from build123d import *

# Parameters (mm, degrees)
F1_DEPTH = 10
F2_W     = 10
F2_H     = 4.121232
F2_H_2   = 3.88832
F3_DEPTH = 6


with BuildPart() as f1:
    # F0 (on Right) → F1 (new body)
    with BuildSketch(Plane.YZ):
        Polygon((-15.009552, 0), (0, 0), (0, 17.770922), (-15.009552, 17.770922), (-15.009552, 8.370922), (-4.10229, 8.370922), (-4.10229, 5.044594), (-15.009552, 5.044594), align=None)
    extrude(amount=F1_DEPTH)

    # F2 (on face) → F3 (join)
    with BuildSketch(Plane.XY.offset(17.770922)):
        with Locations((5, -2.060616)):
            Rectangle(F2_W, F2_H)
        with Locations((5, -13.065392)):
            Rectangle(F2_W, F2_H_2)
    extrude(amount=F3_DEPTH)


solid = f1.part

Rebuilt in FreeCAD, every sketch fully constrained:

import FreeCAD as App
import Part
import Sketcher
from FreeCAD import Vector
Q = App.Units.Quantity

doc = App.newDocument("Part")
body = doc.addObject("PartDesign::Body", "Body")

# Sketch on YZ plane
sketch1 = body.newObject("Sketcher::SketchObject", "Sketch")
sketch1.AttachmentSupport = (doc.getObject("YZ_Plane"), [""])
sketch1.MapMode = "FlatFace"
sketch1.addGeometry([
    Part.LineSegment(Vector(-15, 0, 0), Vector(0, 0, 0)),  # 0
    Part.LineSegment(Vector(0, 0, 0), Vector(0, 17.8, 0)),  # 1
    Part.LineSegment(Vector(0, 17.8, 0), Vector(-15, 17.8, 0)),  # 2
    Part.LineSegment(Vector(-15, 17.8, 0), Vector(-15, 8.4, 0)),  # 3
    Part.LineSegment(Vector(-15, 8.4, 0), Vector(-4.1, 8.4, 0)),  # 4
    Part.LineSegment(Vector(-4.1, 8.4, 0), Vector(-4.1, 5, 0)),  # 5
    Part.LineSegment(Vector(-4.1, 5, 0), Vector(-15, 5, 0)),  # 6
    Part.LineSegment(Vector(-15, 5, 0), Vector(-15, 0, 0)),  # 7
], False)
sketch1.addConstraint([
    Sketcher.Constraint("Coincident", 0, 2, 1, 1),
    Sketcher.Constraint("Coincident", 1, 2, 2, 1),
    Sketcher.Constraint("Coincident", 2, 2, 3, 1),
    Sketcher.Constraint("Coincident", 3, 2, 4, 1),
    Sketcher.Constraint("Coincident", 4, 2, 5, 1),
    Sketcher.Constraint("Coincident", 5, 2, 6, 1),
    Sketcher.Constraint("Coincident", 6, 2, 7, 1),
    Sketcher.Constraint("Coincident", 7, 2, 0, 1),
    Sketcher.Constraint("Horizontal", 0),
    Sketcher.Constraint("Vertical", 1),
    Sketcher.Constraint("Horizontal", 2),
    Sketcher.Constraint("Vertical", 3),
    Sketcher.Constraint("Horizontal", 4),
    Sketcher.Constraint("Vertical", 5),
    Sketcher.Constraint("Horizontal", 6),
    Sketcher.Constraint("Vertical", 7),
    Sketcher.Constraint("Coincident", 0, 2, -1, 1),
    Sketcher.Constraint("Vertical", 3, 2, 6, 2),
    Sketcher.Constraint("DistanceY", 3, 2, 3, 1, Q("9.4 mm")),
    Sketcher.Constraint("DistanceX", 0, 1, 0, 2, Q("15.009552 mm")),
    Sketcher.Constraint("DistanceX", 4, 1, 4, 2, Q("10.907262 mm")),
    Sketcher.Constraint("DistanceY", 1, 1, 1, 2, Q("17.770922 mm")),
    Sketcher.Constraint("DistanceY", 5, 2, 5, 1, Q("3.326328 mm")),
])
pad1 = body.newObject("PartDesign::Pad", "Pad")
pad1.Profile = sketch1
pad1.Length = 10

# Sketch on XY plane
sketch2 = body.newObject("Sketcher::SketchObject", "Sketch001")
sketch2.AttachmentSupport = (doc.getObject("XY_Plane"), [""])
sketch2.MapMode = "FlatFace"
sketch2.AttachmentOffset = App.Placement(Vector(0, 0, 17.770922), App.Rotation())
sketch2.addGeometry([
    Part.LineSegment(Vector(0, 0, 0), Vector(0, -4.1, 0)),  # 0
    Part.LineSegment(Vector(0, -4.1, 0), Vector(10, -4.1, 0)),  # 1
    Part.LineSegment(Vector(10, -4.1, 0), Vector(10, 0, 0)),  # 2
    Part.LineSegment(Vector(10, 0, 0), Vector(0, 0, 0)),  # 3
    Part.LineSegment(Vector(0, -11.1, 0), Vector(0, -15, 0)),  # 4
    Part.LineSegment(Vector(0, -15, 0), Vector(10, -15, 0)),  # 5
    Part.LineSegment(Vector(10, -15, 0), Vector(10, -11.1, 0)),  # 6
    Part.LineSegment(Vector(10, -11.1, 0), Vector(0, -11.1, 0)),  # 7
], False)
sketch2.addConstraint([
    Sketcher.Constraint("Coincident", 0, 2, 1, 1),
    Sketcher.Constraint("Coincident", 1, 2, 2, 1),
    Sketcher.Constraint("Coincident", 2, 2, 3, 1),
    Sketcher.Constraint("Coincident", 3, 2, 0, 1),
    Sketcher.Constraint("Coincident", 4, 2, 5, 1),
    Sketcher.Constraint("Coincident", 5, 2, 6, 1),
    Sketcher.Constraint("Coincident", 6, 2, 7, 1),
    Sketcher.Constraint("Coincident", 7, 2, 4, 1),
    Sketcher.Constraint("Vertical", 0),
    Sketcher.Constraint("Horizontal", 1),
    Sketcher.Constraint("Vertical", 2),
    Sketcher.Constraint("Horizontal", 3),
    Sketcher.Constraint("Vertical", 4),
    Sketcher.Constraint("Horizontal", 5),
    Sketcher.Constraint("Vertical", 6),
    Sketcher.Constraint("Horizontal", 7),
    Sketcher.Constraint("Coincident", 3, 2, -1, 1),
    Sketcher.Constraint("PointOnObject", 4, 2, -2),
    Sketcher.Constraint("Vertical", 2, 2, 5, 2),
    Sketcher.Constraint("DistanceX", 1, 1, 1, 2, Q("10 mm")),
    Sketcher.Constraint("DistanceY", 6, 2, 1, 2, Q("7 mm")),
    Sketcher.Constraint("DistanceY", 4, 2, 4, 1, Q("3.88832 mm")),
    Sketcher.Constraint("DistanceY", 0, 2, 0, 1, Q("4.121232 mm")),
])
pad2 = body.newObject("PartDesign::Pad", "Pad001")
pad2.Profile = sketch2
pad2.Length = 6

doc.recompute()
